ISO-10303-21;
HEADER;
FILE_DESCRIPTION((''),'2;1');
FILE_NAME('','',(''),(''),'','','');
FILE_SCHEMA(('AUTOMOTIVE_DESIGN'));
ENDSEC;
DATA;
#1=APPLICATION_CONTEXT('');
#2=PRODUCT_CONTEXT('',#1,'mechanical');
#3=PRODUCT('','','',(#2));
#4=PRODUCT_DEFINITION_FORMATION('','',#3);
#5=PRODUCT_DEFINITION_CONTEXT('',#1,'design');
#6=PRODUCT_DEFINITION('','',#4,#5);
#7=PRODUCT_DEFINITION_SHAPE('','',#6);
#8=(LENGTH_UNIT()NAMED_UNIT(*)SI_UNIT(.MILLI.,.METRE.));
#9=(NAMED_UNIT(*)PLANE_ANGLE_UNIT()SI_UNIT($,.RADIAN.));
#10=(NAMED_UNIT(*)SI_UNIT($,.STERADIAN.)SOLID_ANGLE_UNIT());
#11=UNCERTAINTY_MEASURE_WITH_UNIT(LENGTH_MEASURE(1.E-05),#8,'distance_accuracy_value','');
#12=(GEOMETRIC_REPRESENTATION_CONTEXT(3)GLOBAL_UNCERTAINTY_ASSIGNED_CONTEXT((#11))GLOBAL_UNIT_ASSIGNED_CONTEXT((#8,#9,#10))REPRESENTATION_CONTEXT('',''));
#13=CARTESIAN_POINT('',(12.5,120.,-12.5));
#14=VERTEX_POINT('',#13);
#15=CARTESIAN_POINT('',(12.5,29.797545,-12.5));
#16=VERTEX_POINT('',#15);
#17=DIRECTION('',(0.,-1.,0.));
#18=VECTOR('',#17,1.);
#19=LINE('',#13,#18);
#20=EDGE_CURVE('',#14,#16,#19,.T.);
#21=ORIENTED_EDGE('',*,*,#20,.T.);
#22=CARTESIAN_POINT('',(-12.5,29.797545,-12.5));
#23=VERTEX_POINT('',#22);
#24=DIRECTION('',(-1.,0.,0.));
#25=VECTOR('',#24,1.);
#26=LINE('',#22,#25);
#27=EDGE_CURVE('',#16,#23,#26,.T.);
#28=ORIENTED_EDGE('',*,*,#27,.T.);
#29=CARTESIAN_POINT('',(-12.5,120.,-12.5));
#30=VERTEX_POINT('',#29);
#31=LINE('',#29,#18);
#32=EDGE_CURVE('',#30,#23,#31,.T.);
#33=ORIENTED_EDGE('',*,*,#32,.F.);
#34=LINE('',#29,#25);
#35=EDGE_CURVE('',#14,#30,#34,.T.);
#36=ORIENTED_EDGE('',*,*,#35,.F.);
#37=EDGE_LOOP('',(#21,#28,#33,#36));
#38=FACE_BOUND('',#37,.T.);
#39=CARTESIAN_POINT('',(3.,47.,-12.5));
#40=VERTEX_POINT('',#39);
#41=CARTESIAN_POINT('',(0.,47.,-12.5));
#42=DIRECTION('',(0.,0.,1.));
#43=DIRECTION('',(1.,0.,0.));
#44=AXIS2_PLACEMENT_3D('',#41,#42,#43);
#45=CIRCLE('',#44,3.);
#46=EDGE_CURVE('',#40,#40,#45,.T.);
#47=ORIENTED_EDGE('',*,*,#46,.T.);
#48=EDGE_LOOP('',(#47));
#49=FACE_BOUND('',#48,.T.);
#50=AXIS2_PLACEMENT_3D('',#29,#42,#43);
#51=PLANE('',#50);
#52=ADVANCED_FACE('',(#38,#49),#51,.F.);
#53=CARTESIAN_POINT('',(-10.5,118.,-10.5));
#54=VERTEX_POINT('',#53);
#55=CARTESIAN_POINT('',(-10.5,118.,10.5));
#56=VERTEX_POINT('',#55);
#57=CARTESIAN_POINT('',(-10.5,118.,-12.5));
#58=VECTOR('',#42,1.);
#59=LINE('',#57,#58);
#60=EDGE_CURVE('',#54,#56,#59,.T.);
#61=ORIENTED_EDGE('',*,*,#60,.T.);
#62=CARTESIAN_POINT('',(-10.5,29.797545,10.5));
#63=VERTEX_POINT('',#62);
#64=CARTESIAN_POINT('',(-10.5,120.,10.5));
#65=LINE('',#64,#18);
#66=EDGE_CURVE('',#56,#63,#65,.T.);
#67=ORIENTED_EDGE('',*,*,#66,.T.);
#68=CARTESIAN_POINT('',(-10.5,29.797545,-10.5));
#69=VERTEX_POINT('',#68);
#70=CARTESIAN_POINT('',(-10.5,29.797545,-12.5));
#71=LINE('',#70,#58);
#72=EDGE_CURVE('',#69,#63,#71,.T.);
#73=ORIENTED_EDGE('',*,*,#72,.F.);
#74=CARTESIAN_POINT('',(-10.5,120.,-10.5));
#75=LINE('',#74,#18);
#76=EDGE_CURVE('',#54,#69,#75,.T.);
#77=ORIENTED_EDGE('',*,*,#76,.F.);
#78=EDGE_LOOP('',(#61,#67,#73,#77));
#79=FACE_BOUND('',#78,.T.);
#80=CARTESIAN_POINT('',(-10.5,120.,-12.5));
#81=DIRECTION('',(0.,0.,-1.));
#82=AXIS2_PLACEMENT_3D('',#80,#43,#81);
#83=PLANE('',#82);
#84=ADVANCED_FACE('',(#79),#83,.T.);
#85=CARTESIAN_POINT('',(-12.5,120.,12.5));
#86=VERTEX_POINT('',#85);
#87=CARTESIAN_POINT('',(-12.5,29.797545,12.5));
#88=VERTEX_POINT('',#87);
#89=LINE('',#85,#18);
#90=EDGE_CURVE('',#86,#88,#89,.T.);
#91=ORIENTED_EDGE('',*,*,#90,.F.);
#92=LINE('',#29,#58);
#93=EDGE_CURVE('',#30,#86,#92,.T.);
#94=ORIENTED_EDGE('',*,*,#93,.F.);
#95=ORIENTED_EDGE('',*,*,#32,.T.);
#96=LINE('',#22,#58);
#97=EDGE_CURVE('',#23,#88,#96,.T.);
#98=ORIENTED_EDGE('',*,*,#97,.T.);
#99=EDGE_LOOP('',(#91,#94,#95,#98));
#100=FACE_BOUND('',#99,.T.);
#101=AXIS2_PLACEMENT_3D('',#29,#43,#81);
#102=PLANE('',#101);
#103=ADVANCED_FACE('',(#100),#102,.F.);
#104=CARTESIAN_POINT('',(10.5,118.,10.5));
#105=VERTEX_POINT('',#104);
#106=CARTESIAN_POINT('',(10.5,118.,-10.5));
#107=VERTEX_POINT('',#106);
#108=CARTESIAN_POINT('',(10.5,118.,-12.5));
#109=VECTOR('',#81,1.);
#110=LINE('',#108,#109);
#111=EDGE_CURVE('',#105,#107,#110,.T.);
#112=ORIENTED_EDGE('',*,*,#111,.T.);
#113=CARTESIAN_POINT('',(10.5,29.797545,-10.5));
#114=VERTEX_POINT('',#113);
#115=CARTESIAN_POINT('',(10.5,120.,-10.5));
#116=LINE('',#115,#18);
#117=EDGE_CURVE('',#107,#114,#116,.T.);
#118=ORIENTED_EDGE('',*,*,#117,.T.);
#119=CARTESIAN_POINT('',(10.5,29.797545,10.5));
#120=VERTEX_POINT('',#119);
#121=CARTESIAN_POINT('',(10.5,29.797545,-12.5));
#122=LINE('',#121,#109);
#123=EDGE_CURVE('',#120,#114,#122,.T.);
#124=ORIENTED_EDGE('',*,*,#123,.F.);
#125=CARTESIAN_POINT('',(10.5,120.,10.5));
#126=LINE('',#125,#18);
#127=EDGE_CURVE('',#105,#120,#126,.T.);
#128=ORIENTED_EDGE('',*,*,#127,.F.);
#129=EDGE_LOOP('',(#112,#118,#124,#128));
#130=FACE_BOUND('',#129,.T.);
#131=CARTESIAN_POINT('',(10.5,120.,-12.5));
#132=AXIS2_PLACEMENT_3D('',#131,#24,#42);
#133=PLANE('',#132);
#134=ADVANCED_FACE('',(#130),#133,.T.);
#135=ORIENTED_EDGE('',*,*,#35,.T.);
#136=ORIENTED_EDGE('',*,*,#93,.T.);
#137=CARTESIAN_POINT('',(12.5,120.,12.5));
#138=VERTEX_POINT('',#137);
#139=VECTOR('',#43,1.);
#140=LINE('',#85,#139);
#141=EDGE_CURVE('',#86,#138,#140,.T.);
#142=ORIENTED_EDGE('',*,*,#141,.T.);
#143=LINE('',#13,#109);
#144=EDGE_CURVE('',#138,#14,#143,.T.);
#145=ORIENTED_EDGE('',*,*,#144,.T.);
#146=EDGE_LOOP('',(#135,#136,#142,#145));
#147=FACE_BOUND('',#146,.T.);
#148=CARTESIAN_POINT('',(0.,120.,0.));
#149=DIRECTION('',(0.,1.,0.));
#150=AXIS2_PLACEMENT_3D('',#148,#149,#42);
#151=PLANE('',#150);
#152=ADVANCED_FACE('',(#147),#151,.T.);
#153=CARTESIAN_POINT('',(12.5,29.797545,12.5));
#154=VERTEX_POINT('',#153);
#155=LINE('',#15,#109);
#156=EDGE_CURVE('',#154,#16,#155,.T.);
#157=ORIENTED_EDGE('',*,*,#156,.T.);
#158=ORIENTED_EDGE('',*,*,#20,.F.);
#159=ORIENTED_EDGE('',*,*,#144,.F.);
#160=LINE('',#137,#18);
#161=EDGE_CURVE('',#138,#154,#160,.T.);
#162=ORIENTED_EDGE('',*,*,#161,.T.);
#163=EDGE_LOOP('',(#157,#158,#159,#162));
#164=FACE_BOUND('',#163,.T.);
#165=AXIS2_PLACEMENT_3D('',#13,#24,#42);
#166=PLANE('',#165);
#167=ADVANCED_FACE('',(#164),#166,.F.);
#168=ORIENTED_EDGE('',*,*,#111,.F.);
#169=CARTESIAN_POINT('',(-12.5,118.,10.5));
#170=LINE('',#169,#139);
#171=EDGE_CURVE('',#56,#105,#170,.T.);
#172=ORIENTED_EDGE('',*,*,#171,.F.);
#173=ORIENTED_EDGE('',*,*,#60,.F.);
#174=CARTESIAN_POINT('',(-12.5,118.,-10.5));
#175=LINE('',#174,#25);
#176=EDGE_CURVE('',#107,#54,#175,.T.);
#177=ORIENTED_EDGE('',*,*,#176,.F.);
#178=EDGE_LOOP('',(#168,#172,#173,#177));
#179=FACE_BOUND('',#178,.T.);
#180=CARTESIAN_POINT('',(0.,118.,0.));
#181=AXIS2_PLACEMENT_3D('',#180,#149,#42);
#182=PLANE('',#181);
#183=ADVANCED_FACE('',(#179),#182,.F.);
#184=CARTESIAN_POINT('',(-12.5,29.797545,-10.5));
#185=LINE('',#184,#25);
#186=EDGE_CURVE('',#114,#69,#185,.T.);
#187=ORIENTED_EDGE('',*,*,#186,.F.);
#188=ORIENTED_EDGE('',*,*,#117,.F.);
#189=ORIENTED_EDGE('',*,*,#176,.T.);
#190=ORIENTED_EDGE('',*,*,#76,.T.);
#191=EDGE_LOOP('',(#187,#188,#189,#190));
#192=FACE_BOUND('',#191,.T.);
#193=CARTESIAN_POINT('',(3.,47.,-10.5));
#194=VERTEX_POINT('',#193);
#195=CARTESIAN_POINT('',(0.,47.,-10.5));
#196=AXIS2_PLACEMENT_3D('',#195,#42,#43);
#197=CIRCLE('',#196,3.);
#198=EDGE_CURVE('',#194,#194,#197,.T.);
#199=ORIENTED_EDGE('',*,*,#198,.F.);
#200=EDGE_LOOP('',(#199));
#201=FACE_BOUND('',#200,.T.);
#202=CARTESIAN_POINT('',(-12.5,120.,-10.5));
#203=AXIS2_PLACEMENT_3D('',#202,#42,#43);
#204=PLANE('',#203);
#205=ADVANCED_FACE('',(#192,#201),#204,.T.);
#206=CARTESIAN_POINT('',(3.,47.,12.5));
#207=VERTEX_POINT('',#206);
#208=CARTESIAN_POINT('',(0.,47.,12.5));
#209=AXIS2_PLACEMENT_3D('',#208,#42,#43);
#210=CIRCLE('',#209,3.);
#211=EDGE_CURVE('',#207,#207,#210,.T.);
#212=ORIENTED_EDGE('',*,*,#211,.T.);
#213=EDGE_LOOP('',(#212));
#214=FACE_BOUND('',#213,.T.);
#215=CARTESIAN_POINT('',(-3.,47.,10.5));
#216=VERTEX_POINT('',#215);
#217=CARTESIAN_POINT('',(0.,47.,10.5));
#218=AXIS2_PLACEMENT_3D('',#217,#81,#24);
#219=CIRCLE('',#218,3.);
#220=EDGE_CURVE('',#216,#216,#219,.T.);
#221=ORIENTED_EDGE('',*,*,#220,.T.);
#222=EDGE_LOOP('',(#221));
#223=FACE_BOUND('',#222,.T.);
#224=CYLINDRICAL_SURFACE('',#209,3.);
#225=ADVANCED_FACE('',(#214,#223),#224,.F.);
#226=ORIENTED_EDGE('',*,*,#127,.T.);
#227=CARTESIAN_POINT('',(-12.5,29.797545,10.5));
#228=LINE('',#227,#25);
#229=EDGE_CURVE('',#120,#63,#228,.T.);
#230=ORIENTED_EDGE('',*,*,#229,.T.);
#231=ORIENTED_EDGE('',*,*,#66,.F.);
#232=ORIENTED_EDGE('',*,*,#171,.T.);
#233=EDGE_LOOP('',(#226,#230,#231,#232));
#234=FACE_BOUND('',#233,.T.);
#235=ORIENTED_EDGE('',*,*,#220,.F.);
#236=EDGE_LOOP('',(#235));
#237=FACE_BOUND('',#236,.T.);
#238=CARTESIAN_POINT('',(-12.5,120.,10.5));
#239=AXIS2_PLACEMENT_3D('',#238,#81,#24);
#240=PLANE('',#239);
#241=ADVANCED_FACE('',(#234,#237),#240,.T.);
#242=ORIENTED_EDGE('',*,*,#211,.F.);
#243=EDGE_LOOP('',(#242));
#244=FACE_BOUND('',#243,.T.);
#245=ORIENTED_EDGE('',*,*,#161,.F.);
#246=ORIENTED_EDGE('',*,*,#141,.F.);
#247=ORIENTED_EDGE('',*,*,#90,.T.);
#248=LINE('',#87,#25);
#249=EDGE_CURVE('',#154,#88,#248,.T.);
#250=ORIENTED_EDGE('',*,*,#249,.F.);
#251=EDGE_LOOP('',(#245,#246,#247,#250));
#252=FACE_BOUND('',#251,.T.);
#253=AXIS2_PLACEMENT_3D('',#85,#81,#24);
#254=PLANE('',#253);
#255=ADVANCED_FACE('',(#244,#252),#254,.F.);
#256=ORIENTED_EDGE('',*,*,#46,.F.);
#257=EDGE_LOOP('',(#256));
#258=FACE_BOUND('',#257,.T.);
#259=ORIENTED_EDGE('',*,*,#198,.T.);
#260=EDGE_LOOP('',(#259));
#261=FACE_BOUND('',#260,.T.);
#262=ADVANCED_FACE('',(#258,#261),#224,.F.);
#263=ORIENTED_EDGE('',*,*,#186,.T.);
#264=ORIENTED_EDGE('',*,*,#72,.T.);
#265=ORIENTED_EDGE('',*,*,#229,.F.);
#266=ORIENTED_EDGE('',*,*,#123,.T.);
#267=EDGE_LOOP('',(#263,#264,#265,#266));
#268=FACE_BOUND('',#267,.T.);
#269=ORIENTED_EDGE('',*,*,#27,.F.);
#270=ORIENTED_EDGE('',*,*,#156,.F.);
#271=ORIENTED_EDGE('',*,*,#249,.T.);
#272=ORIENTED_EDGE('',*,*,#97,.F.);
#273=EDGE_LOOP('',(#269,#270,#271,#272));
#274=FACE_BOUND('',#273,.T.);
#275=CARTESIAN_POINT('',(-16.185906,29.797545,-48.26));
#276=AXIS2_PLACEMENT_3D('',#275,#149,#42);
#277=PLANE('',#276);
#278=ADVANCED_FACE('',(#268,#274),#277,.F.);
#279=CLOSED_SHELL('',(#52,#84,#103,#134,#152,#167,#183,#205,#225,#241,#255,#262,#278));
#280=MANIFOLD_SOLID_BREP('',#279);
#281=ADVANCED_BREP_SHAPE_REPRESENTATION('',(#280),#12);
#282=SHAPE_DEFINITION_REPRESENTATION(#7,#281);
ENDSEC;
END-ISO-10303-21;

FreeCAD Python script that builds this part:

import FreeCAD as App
import Part
import Sketcher

V = App.Vector
Q = App.Units.Quantity


def faces_at(feature, points):
    """Names of the faces that lie closest to the given points."""
    faces = feature.Shape.Faces
    near = lambda p: min(range(len(faces)), key=lambda i: faces[i].distToShape(Part.Vertex(*p))[0])
    return sorted({f"Face{near(p) + 1}" for p in points})


def add_polygon(sketch, points):
    """Adds a closed chain of lines whose ends are joined by coincident constraints."""
    first, n = sketch.GeometryCount, len(points)
    for a, b in zip(points, points[1:] + points[:1]):
        sketch.addGeometry(Part.LineSegment(App.Vector(*a, 0), App.Vector(*b, 0)), False)
    for i in range(n):
        sketch.addConstraint(Sketcher.Constraint("Coincident", first + i, 2, first + (i + 1) % n, 1))

doc = App.newDocument("Part")
params = doc.addObject("Spreadsheet::Sheet", "Params")
for row, (alias, value) in enumerate([
    ("sketch1_width", "25 mm"),
    ("pad1_length", "120 mm"),
    ("thickness_wall", "2 mm"),
    ("sketch2_diameter", "6 mm"),
    ("hole_diameter", "6 mm"),
    ("pocket1_length", "48.26 mm"),
], start=1):
    params.set(f"A{row}", alias)
    params.set(f"B{row}", "=" + value)
    params.setAlias(f"B{row}", alias)

body = doc.addObject("PartDesign::Body", "Body")

# Sketch on XZ plane
sketch1 = doc.addObject("Sketcher::SketchObject", "Sketch")
body.addObject(sketch1)
sketch1.AttachmentSupport = (doc.XZ_Plane, [""])
sketch1.MapMode = "FlatFace"
add_polygon(sketch1, [(-13, -13), (-13, 13), (13, 13), (13, -13)])  # lines 0-3
sketch1.addConstraint([
    Sketcher.Constraint("Vertical", 0),
    Sketcher.Constraint("Horizontal", 1),
    Sketcher.Constraint("Vertical", 2),
    Sketcher.Constraint("Horizontal", 3),
    Sketcher.Constraint("Symmetric", 0, 2, 2, 2, -1, 1),
    Sketcher.Constraint("Equal", 3, 0),
    Sketcher.Constraint("DistanceX", 1, 1, 1, 2, Q("25 mm")),
])
sketch1.setExpression("Constraints[10]", "Params.sketch1_width")
pad1 = doc.addObject("PartDesign::Pad", "Pad")
body.addObject(pad1)
pad1.Profile = sketch1
pad1.setExpression("Length", "Params.pad1_length")
pad1.Reversed = True
doc.recompute()

thickness = doc.addObject("PartDesign::Thickness", "Thickness")
body.addObject(thickness)
thickness.Base = (pad1, faces_at(pad1, [(0, 0, 0)]))
thickness.setExpression("Value", "Params.thickness_wall")
thickness.Reversed = True
thickness.Join = "Intersection"

# Sketch on XY plane
sketch2 = doc.addObject("Sketcher::SketchObject", "Sketch001")
body.addObject(sketch2)
sketch2.AttachmentSupport = (doc.XY_Plane, [""])
sketch2.MapMode = "FlatFace"
sketch2.AttachmentOffset = App.Placement(V(0, 0, 12.5), App.Rotation())
sketch2.addGeometry(Part.Circle(V(0, 47, 0), V(0, 0, 1), 3), False)
sketch2.addConstraint([
    Sketcher.Constraint("PointOnObject", 0, 3, -2),
    Sketcher.Constraint("Diameter", 0, Q("6 mm")),
    Sketcher.Constraint("DistanceY", -1, 1, 0, 3, Q("47 mm")),
])
sketch2.setExpression("Constraints[1]", "Params.sketch2_diameter")
doc.recompute()
hole = doc.addObject("PartDesign::Hole", "Hole")
body.addObject(hole)
hole.Profile = sketch2
hole.ThreadType = "None"
hole.setExpression("Diameter", "Params.hole_diameter")
hole.DepthType = "ThroughAll"

# Sketch on XY plane
sketch3 = doc.addObject("Sketcher::SketchObject", "Sketch002")
body.addObject(sketch3)
sketch3.AttachmentSupport = (doc.XY_Plane, [""])
sketch3.MapMode = "FlatFace"
add_polygon(sketch3, [(-16, 30), (-16, -11), (19, -11), (19, 30)])  # lines 0-3
sketch3.addConstraint([
    Sketcher.Constraint("Vertical", 0),
    Sketcher.Constraint("Horizontal", 1),
    Sketcher.Constraint("Vertical", 2),
    Sketcher.Constraint("Horizontal", 3),
    Sketcher.Constraint("DistanceY", 0, 2, 0, 1, Q("40.928419 mm")),
    Sketcher.Constraint("DistanceX", 1, 1, 1, 2, Q("35.234136 mm")),
    Sketcher.Constraint("DistanceX", -1, 1, 1, 2, Q("19.04823 mm")),
    Sketcher.Constraint("DistanceY", 0, 2, -1, 1, Q("11.130873 mm")),
])
pocket1 = doc.addObject("PartDesign::Pocket", "Pocket")
body.addObject(pocket1)
pocket1.Profile = sketch3
pocket1.setExpression("Length", "Params.pocket1_length")

# Sketch on XY plane
sketch4 = doc.addObject("Sketcher::SketchObject", "Sketch003")
body.addObject(sketch4)
sketch4.AttachmentSupport = (doc.XY_Plane, [""])
sketch4.MapMode = "FlatFace"
add_polygon(sketch4, [(-16, 30), (-16, -11), (19, -11), (19, 30)])  # lines 0-3
sketch4.addConstraint([
    Sketcher.Constraint("Vertical", 0),
    Sketcher.Constraint("Horizontal", 1),
    Sketcher.Constraint("Vertical", 2),
    Sketcher.Constraint("Horizontal", 3),
    Sketcher.Constraint("DistanceY", 0, 2, 0, 1, Q("40.928419 mm")),
    Sketcher.Constraint("DistanceX", 1, 1, 1, 2, Q("35.234136 mm")),
    Sketcher.Constraint("DistanceX", -1, 1, 1, 2, Q("19.04823 mm")),
    Sketcher.Constraint("DistanceY", 0, 2, -1, 1, Q("11.130873 mm")),
])
pocket2 = doc.addObject("PartDesign::Pocket", "Pocket001")
body.addObject(pocket2)
pocket2.Profile = sketch4
pocket2.Type = "ThroughAll"
pocket2.Midplane = True

doc.recompute()
